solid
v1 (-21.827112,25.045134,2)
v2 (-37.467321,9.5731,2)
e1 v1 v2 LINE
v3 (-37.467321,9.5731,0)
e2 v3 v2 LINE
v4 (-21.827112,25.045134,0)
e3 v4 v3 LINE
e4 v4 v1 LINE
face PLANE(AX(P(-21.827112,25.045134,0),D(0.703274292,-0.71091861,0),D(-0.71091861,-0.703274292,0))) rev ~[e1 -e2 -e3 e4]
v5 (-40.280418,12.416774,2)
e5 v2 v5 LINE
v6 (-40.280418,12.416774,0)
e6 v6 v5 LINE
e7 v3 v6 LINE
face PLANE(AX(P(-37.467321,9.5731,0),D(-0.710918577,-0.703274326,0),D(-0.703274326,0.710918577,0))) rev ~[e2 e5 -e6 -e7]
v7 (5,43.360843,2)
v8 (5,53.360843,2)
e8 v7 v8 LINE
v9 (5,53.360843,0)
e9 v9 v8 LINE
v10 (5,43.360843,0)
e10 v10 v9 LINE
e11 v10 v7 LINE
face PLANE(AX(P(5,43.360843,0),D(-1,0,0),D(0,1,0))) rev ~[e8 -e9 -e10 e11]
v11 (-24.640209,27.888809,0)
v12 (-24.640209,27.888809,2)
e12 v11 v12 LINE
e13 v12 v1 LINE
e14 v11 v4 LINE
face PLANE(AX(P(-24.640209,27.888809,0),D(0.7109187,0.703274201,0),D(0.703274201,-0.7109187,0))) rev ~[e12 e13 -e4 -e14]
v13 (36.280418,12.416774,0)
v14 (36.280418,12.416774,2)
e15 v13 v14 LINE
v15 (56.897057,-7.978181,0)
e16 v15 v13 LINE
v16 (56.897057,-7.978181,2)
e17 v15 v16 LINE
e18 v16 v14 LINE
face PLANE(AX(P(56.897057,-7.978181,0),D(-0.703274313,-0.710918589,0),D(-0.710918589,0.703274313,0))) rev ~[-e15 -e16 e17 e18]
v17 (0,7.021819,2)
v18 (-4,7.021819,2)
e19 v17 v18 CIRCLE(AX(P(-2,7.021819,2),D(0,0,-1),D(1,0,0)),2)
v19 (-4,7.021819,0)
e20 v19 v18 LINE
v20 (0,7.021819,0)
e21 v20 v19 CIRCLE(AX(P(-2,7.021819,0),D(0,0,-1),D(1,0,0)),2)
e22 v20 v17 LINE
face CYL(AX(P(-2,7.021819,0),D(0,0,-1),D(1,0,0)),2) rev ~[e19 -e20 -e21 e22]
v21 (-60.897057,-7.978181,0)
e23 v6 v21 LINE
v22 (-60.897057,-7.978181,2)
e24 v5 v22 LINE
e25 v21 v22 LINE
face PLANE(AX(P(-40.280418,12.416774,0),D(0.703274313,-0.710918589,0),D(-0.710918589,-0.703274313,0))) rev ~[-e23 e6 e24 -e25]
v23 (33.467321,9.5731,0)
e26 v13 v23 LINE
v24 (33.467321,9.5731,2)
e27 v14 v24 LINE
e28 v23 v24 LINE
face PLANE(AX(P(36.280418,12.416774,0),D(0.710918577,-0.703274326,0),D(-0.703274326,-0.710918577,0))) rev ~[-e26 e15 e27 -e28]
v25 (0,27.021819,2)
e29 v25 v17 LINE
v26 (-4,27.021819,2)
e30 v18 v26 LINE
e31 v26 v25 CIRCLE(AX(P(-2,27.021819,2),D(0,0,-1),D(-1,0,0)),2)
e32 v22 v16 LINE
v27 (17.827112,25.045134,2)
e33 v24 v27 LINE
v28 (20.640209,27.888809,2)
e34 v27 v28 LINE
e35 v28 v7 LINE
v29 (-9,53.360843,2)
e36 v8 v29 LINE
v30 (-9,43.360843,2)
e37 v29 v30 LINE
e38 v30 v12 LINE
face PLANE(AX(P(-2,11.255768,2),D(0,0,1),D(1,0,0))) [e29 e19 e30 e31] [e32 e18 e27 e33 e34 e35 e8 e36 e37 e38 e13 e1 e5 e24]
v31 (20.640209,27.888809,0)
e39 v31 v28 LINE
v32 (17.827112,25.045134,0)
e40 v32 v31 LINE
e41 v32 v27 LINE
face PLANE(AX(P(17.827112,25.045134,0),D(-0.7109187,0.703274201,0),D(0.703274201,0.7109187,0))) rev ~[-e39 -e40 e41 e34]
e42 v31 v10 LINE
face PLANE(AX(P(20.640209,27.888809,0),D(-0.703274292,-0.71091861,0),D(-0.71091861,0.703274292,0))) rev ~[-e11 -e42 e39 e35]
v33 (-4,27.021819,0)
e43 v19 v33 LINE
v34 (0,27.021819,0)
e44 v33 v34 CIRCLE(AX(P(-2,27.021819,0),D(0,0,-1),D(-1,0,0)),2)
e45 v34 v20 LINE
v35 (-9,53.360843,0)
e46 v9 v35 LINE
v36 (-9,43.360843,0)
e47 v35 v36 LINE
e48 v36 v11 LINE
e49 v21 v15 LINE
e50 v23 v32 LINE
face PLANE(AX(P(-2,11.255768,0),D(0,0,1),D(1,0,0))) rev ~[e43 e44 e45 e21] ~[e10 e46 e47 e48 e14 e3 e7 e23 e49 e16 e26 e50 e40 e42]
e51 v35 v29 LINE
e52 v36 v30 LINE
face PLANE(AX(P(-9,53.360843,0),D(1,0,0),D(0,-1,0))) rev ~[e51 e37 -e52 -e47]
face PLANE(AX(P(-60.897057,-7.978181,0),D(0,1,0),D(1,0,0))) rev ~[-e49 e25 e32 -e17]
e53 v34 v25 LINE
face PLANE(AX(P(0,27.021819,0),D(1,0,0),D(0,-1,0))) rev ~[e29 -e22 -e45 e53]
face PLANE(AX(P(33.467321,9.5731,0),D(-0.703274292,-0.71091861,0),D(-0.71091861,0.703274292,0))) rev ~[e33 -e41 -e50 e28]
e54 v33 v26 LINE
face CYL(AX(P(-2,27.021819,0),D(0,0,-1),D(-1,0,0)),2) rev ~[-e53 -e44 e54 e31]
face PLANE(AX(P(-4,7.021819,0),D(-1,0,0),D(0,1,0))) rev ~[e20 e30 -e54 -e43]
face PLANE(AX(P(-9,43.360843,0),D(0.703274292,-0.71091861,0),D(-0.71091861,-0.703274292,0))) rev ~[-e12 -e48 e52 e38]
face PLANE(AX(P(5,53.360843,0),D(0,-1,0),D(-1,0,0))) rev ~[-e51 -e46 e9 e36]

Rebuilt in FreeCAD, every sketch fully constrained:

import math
import FreeCAD as App
import Part
import Sketcher


def add_polygon(sketch, points):
    """Adds a closed chain of lines whose ends are joined by coincident constraints."""
    first, n = sketch.GeometryCount, len(points)
    for a, b in zip(points, points[1:] + points[:1]):
        sketch.addGeometry(Part.LineSegment(App.Vector(*a, 0), App.Vector(*b, 0)), False)
    for i in range(n):
        sketch.addConstraint(Sketcher.Constraint("Coincident", first + i, 2, first + (i + 1) % n, 1))

doc = App.newDocument("Part")
body = doc.addObject("PartDesign::Body", "Body")

sketch1 = body.newObject("Sketcher::SketchObject", "Sketch")
sketch1.AttachmentSupport = (doc.getObject("XY_Plane"), [""])
sketch1.MapMode = "FlatFace"
add_polygon(sketch1, [(-24.6, 27.9), (-21.8, 25), (-37.5, 9.6), (-40.3, 12.4), (-60.9, -8), (56.9, -8), (36.3, 12.4), (33.5, 9.6), (17.8, 25), (20.6, 27.9), (5, 43.4), (5, 53.4), (-9, 53.4), (-9, 43.4)])
sketch1.addGeometry(Part.ArcOfCircle(Part.Circle(App.Vector(-2, 27, 0), App.Vector(0, 0, 1), 2), math.radians(0), math.radians(180)), False)
sketch1.addGeometry(Part.LineSegment(App.Vector(0, 27, 0), App.Vector(0, 7, 0)), False)
sketch1.addGeometry(Part.ArcOfCircle(Part.Circle(App.Vector(-2, 7, 0), App.Vector(0, 0, 1), 2), math.radians(180), math.radians(360)), False)
sketch1.addGeometry(Part.LineSegment(App.Vector(-4, 7, 0), App.Vector(-4, 27, 0)), False)
sketch1.addConstraint([
    Sketcher.Constraint("Tangent", 14, 1, 15, 1),
    Sketcher.Constraint("Tangent", 15, 2, 16, 2),
    Sketcher.Constraint("Tangent", 16, 1, 17, 1),
    Sketcher.Constraint("Tangent", 17, 2, 14, 2),
    Sketcher.Constraint("Horizontal", 4),
    Sketcher.Constraint("Vertical", 10),
    Sketcher.Constraint("Horizontal", 11),
    Sketcher.Constraint("Vertical", 12),
    Sketcher.Constraint("Vertical", 15),
    Sketcher.Constraint("Vertical", 17),
    Sketcher.Constraint("PointOnObject", 14, 1, -2),
    Sketcher.Constraint("Perpendicular", 0, 1),
    Sketcher.Constraint("Perpendicular", 1, 2),
    Sketcher.Constraint("Perpendicular", 2, 3),
    Sketcher.Constraint("Perpendicular", 5, 6),
    Sketcher.Constraint("Perpendicular", 6, 7),
    Sketcher.Constraint("Perpendicular", 7, 8),
    Sketcher.Constraint("Perpendicular", 8, 9),
    Sketcher.Constraint("Parallel", 3, 13),
    Sketcher.Constraint("Horizontal", 2, 2, 5, 2),
    Sketcher.Constraint("Horizontal", 1, 2, 6, 2),
    Sketcher.Constraint("Horizontal", 0, 2, 7, 2),
    Sketcher.Constraint("Horizontal", 9, 2, 12, 2),
    Sketcher.Constraint("Horizontal", 8, 2, 13, 2),
    Sketcher.Constraint("Equal", 0, 2),
    Sketcher.Constraint("Equal", 3, 5),
    Sketcher.Constraint("Equal", 7, 9),
    Sketcher.Constraint("Radius", 14, 2.0),
    Sketcher.Constraint("DistanceX", 11, 2, 11, 1, 14.0),
    Sketcher.Constraint("DistanceY", 10, 1, 10, 2, 10.0),
    Sketcher.Constraint("DistanceY", 15, 2, 15, 1, 20.0),
    Sketcher.Constraint("Distance", 0, 4.0),
    Sketcher.Constraint("Distance", 1, 21.999999),
    Sketcher.Constraint("Distance", 3, 29.0),
    Sketcher.Constraint("DistanceX", -1, 1, 9, 2, 5.0),
    Sketcher.Constraint("DistanceY", 3, 2, 16, 3, 15.0),
    Sketcher.Constraint("DistanceY", -1, 1, 1, 2, 9.5731),
    Sketcher.Constraint("DistanceX", 4, 1, 4, 2, 117.794114),
])
pad1 = body.newObject("PartDesign::Pad", "Pad")
pad1.Profile = sketch1
pad1.Length = 2

doc.recompute()
